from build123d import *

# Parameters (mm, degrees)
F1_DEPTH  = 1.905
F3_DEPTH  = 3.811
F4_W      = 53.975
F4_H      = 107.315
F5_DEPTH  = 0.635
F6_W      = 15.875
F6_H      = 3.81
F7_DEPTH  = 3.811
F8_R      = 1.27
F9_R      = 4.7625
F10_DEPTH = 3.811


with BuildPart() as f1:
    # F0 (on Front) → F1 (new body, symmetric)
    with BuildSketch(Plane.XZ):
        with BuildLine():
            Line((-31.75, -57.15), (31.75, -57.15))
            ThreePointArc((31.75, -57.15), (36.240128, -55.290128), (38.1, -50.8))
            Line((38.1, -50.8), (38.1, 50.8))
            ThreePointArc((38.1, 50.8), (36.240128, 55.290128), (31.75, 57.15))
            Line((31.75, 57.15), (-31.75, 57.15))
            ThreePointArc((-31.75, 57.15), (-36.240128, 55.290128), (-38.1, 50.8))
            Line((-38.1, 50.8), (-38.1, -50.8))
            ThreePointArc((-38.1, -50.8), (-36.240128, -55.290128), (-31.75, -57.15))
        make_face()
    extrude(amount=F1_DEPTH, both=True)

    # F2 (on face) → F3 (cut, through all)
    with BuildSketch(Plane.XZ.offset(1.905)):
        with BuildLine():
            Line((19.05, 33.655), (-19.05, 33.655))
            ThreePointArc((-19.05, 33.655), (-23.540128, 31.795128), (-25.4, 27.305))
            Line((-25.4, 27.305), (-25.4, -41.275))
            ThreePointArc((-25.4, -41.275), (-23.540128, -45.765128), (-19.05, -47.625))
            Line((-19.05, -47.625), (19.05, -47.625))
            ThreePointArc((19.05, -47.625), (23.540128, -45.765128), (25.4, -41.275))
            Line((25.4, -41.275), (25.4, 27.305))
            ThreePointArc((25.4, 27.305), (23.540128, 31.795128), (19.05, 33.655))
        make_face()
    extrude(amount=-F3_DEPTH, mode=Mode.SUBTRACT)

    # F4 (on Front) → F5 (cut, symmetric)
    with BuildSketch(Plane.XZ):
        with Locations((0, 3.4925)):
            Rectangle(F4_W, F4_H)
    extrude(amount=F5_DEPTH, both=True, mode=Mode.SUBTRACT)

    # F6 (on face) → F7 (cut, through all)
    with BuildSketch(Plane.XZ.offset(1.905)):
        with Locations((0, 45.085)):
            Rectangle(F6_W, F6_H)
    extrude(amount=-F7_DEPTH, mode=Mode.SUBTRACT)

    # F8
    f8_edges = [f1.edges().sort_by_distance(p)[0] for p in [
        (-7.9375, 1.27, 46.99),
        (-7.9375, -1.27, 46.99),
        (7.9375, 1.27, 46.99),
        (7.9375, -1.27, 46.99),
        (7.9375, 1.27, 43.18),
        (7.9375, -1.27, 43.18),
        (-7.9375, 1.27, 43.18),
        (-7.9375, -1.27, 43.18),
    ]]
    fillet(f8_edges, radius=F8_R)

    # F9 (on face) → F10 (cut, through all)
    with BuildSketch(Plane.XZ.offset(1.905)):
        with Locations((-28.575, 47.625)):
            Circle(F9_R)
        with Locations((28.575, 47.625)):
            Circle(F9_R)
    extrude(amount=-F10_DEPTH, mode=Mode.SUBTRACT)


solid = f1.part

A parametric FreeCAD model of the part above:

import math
import FreeCAD as App
import Part
import Sketcher
from FreeCAD import Vector
Q = App.Units.Quantity


def edges_at(feature, points):
    """Names of the edges that pass closest to the given points."""
    edges = feature.Shape.Edges
    near = lambda p: min(range(len(edges)), key=lambda i: edges[i].distToShape(Part.Vertex(*p))[0])
    return sorted({f"Edge{near(p) + 1}" for p in points})


def add_polygon(sketch, points):
    """Adds a closed chain of lines whose ends are joined by coincident constraints."""
    first, n = sketch.GeometryCount, len(points)
    for a, b in zip(points, points[1:] + points[:1]):
        sketch.addGeometry(Part.LineSegment(App.Vector(*a, 0), App.Vector(*b, 0)), False)
    for i in range(n):
        sketch.addConstraint(Sketcher.Constraint("Coincident", first + i, 2, first + (i + 1) % n, 1))

doc = App.newDocument("Part")
params = doc.addObject("Spreadsheet::Sheet", "Params")
for row, (alias, value) in enumerate([
    ("sketch1_height", "4 in"),
    ("sketch1_radius", "0.25 in"),
    ("sketch1_width", "2.5 in"),
    ("pad1_length", "0.15 in"),
    ("sketch2_radius", "0.25 in"),
    ("sketch2_width", "1.5 in"),
    ("sketch2_height", "2.7 in"),
    ("sketch3_width", "2.125 in"),
    ("sketch3_height", "4.225 in"),
    ("pocket2_length", "0.05 in"),
    ("sketch4_height", "0.15 in"),
    ("sketch4_width", "0.625 in"),
    ("fillet_radius", "0.05 in"),
    ("sketch5_diameter", "0.375 in"),
], start=1):
    params.set(f"A{row}", alias)
    params.set(f"B{row}", "=" + value)
    params.setAlias(f"B{row}", alias)

body = doc.addObject("PartDesign::Body", "Body")

# Sketch on XZ plane
sketch1 = body.newObject("Sketcher::SketchObject", "Sketch")
sketch1.AttachmentSupport = (doc.getObject("XZ_Plane"), [""])
sketch1.MapMode = "FlatFace"
sketch1.addGeometry([
    Part.LineSegment(Vector(-32, -57, 0), Vector(32, -57, 0)),  # 0
    Part.ArcOfCircle(Part.Circle(Vector(32, -51, 0), Vector(0, 0, 1), 6), math.radians(-90), math.radians(0)),  # 1
    Part.LineSegment(Vector(38, -51, 0), Vector(38, 51, 0)),  # 2
    Part.ArcOfCircle(Part.Circle(Vector(32, 51, 0), Vector(0, 0, 1), 6), math.radians(0), math.radians(90)),  # 3
    Part.LineSegment(Vector(32, 57, 0), Vector(-32, 57, 0)),  # 4
    Part.ArcOfCircle(Part.Circle(Vector(-32, 51, 0), Vector(0, 0, 1), 6), math.radians(90), math.radians(180)),  # 5
    Part.LineSegment(Vector(-38, 51, 0), Vector(-38, -51, 0)),  # 6
    Part.ArcOfCircle(Part.Circle(Vector(-32, -51, 0), Vector(0, 0, 1), 6), math.radians(-180), math.radians(-90)),  # 7
], False)
sketch1.addConstraint([
    Sketcher.Constraint("Tangent", 0, 2, 1, 1),
    Sketcher.Constraint("Tangent", 1, 2, 2, 1),
    Sketcher.Constraint("Tangent", 2, 2, 3, 1),
    Sketcher.Constraint("Tangent", 3, 2, 4, 1),
    Sketcher.Constraint("Tangent", 4, 2, 5, 1),
    Sketcher.Constraint("Tangent", 5, 2, 6, 1),
    Sketcher.Constraint("Tangent", 6, 2, 7, 1),
    Sketcher.Constraint("Tangent", 7, 2, 0, 1),
    Sketcher.Constraint("Horizontal", 0),
    Sketcher.Constraint("Vertical", 2),
    Sketcher.Constraint("Horizontal", 4),
    Sketcher.Constraint("Vertical", 6),
    Sketcher.Constraint("Equal", 1, 3),
    Sketcher.Constraint("Equal", 3, 5),
    Sketcher.Constraint("Equal", 5, 7),
    Sketcher.Constraint("Symmetric", 1, 3, 5, 3, -1, 1),
    Sketcher.Constraint("DistanceY", 2, 1, 2, 2, Q("4 in")),
    Sketcher.Constraint("Radius", 1, Q("0.25 in")),
    Sketcher.Constraint("DistanceX", 0, 1, 0, 2, Q("2.5 in")),
])
sketch1.setExpression("Constraints[16]", "Params.sketch1_height")
sketch1.setExpression("Constraints[17]", "Params.sketch1_radius")
sketch1.setExpression("Constraints[18]", "Params.sketch1_width")
pad1 = body.newObject("PartDesign::Pad", "Pad")
pad1.Profile = sketch1
pad1.setExpression("Length", "Params.pad1_length")
pad1.Midplane = True

# Sketch on XZ plane
sketch2 = body.newObject("Sketcher::SketchObject", "Sketch001")
sketch2.AttachmentSupport = (doc.getObject("XZ_Plane"), [""])
sketch2.MapMode = "FlatFace"
sketch2.AttachmentOffset = App.Placement(Vector(0, 0, 0.075 * 25.4), App.Rotation())
sketch2.addGeometry([
    Part.LineSegment(Vector(19, 34, 0), Vector(-19, 34, 0)),  # 0
    Part.ArcOfCircle(Part.Circle(Vector(-19, 27, 0), Vector(0, 0, 1), 6), math.radians(90), math.radians(180)),  # 1
    Part.LineSegment(Vector(-25, 27, 0), Vector(-25, -41, 0)),  # 2
    Part.ArcOfCircle(Part.Circle(Vector(-19, -41, 0), Vector(0, 0, 1), 6), math.radians(-180), math.radians(-90)),  # 3
    Part.LineSegment(Vector(-19, -48, 0), Vector(19, -48, 0)),  # 4
    Part.ArcOfCircle(Part.Circle(Vector(19, -41, 0), Vector(0, 0, 1), 6), math.radians(-90), math.radians(0)),  # 5
    Part.LineSegment(Vector(25, -41, 0), Vector(25, 27, 0)),  # 6
    Part.ArcOfCircle(Part.Circle(Vector(19, 27, 0), Vector(0, 0, 1), 6), math.radians(0), math.radians(90)),  # 7
], False)
sketch2.addConstraint([
    Sketcher.Constraint("Tangent", 0, 2, 1, 1),
    Sketcher.Constraint("Tangent", 1, 2, 2, 1),
    Sketcher.Constraint("Tangent", 2, 2, 3, 1),
    Sketcher.Constraint("Tangent", 3, 2, 4, 1),
    Sketcher.Constraint("Tangent", 4, 2, 5, 1),
    Sketcher.Constraint("Tangent", 5, 2, 6, 1),
    Sketcher.Constraint("Tangent", 6, 2, 7, 1),
    Sketcher.Constraint("Tangent", 7, 2, 0, 1),
    Sketcher.Constraint("Horizontal", 0),
    Sketcher.Constraint("Vertical", 2),
    Sketcher.Constraint("Horizontal", 4),
    Sketcher.Constraint("Vertical", 6),
    Sketcher.Constraint("Equal", 1, 3),
    Sketcher.Constraint("Equal", 3, 5),
    Sketcher.Constraint("Equal", 5, 7),
    Sketcher.Constraint("Radius", 1, Q("0.25 in")),
    Sketcher.Constraint("DistanceX", 0, 2, 0, 1, Q("1.5 in")),
    Sketcher.Constraint("DistanceY", 2, 2, 2, 1, Q("2.7 in")),
    Sketcher.Constraint("DistanceX", 1, 2, -1, 1, Q("1 in")),
    Sketcher.Constraint("DistanceY", -1, 1, 1, 3, Q("1.075 in")),
])
sketch2.setExpression("Constraints[15]", "Params.sketch2_radius")
sketch2.setExpression("Constraints[16]", "Params.sketch2_width")
sketch2.setExpression("Constraints[17]", "Params.sketch2_height")
pocket1 = body.newObject("PartDesign::Pocket", "Pocket")
pocket1.Profile = sketch2
pocket1.Type = "ThroughAll"

# Sketch on XZ plane
sketch3 = body.newObject("Sketcher::SketchObject", "Sketch002")
sketch3.AttachmentSupport = (doc.getObject("XZ_Plane"), [""])
sketch3.MapMode = "FlatFace"
add_polygon(sketch3, [(-27, 57), (-27, -50), (27, -50), (27, 57)])  # lines 0-3
sketch3.addConstraint([
    Sketcher.Constraint("Vertical", 0),
    Sketcher.Constraint("Horizontal", 1),
    Sketcher.Constraint("Vertical", 2),
    Sketcher.Constraint("Horizontal", 3),
    Sketcher.Constraint("DistanceX", 1, 1, 1, 2, Q("2.125 in")),
    Sketcher.Constraint("DistanceY", 0, 2, 0, 1, Q("4.225 in")),
    Sketcher.Constraint("DistanceY", -1, 1, 2, 2, Q("2.25 in")),
    Sketcher.Constraint("DistanceX", 0, 2, -1, 1, Q("1.0625 in")),
])
sketch3.setExpression("Constraints[8]", "Params.sketch3_width")
sketch3.setExpression("Constraints[9]", "Params.sketch3_height")
pocket2 = body.newObject("PartDesign::Pocket", "Pocket001")
pocket2.Profile = sketch3
pocket2.setExpression("Length", "Params.pocket2_length")
pocket2.Midplane = True

# Sketch on XZ plane
sketch4 = body.newObject("Sketcher::SketchObject", "Sketch003")
sketch4.AttachmentSupport = (doc.getObject("XZ_Plane"), [""])
sketch4.MapMode = "FlatFace"
sketch4.AttachmentOffset = App.Placement(Vector(0, 0, 0.075 * 25.4), App.Rotation())
add_polygon(sketch4, [(-7.9, 47), (-7.9, 43.2), (7.9, 43.2), (7.9, 47)])  # lines 0-3
sketch4.addConstraint([
    Sketcher.Constraint("Vertical", 0),
    Sketcher.Constraint("Horizontal", 1),
    Sketcher.Constraint("Vertical", 2),
    Sketcher.Constraint("Horizontal", 3),
    Sketcher.Constraint("DistanceY", 0, 2, 0, 1, Q("0.15 in")),
    Sketcher.Constraint("DistanceY", -1, 1, 0, 2, Q("1.7 in")),
    Sketcher.Constraint("DistanceX", 1, 1, 1, 2, Q("0.625 in")),
    Sketcher.Constraint("DistanceX", 0, 2, -1, 1, Q("0.3125 in")),
])
sketch4.setExpression("Constraints[8]", "Params.sketch4_height")
sketch4.setExpression("Constraints[10]", "Params.sketch4_width")
pocket3 = body.newObject("PartDesign::Pocket", "Pocket002")
pocket3.Profile = sketch4
pocket3.Type = "ThroughAll"
doc.recompute()

fillet = body.newObject("PartDesign::Fillet", "Fillet")
fillet.Base = (pocket3, edges_at(pocket3, [
    (-7.938, 1.27, 46.99),
    (-7.938, -1.27, 46.99),
    (7.938, 1.27, 46.99),
    (7.938, -1.27, 46.99),
    (7.938, 1.27, 43.18),
    (7.938, -1.27, 43.18),
    (-7.938, 1.27, 43.18),
    (-7.938, -1.27, 43.18),
]))
fillet.setExpression("Radius", "Params.fillet_radius")

# Sketch on XZ plane
sketch5 = body.newObject("Sketcher::SketchObject", "Sketch004")
sketch5.AttachmentSupport = (doc.getObject("XZ_Plane"), [""])
sketch5.MapMode = "FlatFace"
sketch5.AttachmentOffset = App.Placement(Vector(0, 0, 0.075 * 25.4), App.Rotation())
sketch5.addGeometry([
    Part.Circle(Vector(-28.6, 47.6, 0), Vector(0, 0, 1), 4.8),
    Part.Circle(Vector(28.6, 47.6, 0), Vector(0, 0, 1), 4.8),
], False)
sketch5.addConstraint([
    Sketcher.Constraint("Equal", 0, 1),
    Sketcher.Constraint("Symmetric", 0, 3, 1, 3, -2),
    Sketcher.Constraint("Diameter", 0, Q("0.375 in")),
    Sketcher.Constraint("DistanceX", 0, 3, 1, 3, Q("2.25 in")),
    Sketcher.Constraint("DistanceY", -1, 1, 0, 3, Q("1.875 in")),
])
sketch5.setExpression("Constraints[2]", "Params.sketch5_diameter")
pocket4 = body.newObject("PartDesign::Pocket", "Pocket003")
pocket4.Profile = sketch5
pocket4.Type = "ThroughAll"

doc.recompute()
